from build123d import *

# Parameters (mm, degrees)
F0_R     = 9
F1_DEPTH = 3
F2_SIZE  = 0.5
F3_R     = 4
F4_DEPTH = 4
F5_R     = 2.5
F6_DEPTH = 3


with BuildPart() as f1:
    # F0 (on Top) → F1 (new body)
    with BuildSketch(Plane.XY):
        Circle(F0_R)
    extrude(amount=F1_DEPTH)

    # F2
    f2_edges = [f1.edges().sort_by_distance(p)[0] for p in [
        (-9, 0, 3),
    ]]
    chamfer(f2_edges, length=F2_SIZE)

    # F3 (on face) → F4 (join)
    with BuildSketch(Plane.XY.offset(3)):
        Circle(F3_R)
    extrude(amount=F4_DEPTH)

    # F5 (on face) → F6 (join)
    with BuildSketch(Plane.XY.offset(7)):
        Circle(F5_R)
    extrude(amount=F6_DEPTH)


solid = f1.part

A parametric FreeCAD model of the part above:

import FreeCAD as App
import Part
import Sketcher
from FreeCAD import Vector
Q = App.Units.Quantity


def edges_at(feature, points):
    """Names of the edges that pass closest to the given points."""
    edges = feature.Shape.Edges
    near = lambda p: min(range(len(edges)), key=lambda i: edges[i].distToShape(Part.Vertex(*p))[0])
    return sorted({f"Edge{near(p) + 1}" for p in points})

doc = App.newDocument("Part")
body = doc.addObject("PartDesign::Body", "Body")

sketch1 = doc.addObject("Sketcher::SketchObject", "Sketch")
body.addObject(sketch1)
sketch1.AttachmentSupport = (doc.XY_Plane, [""])
sketch1.MapMode = "FlatFace"
sketch1.addGeometry(Part.Circle(Vector(0, 0, 0), Vector(0, 0, 1), 9), False)
sketch1.addConstraint(Sketcher.Constraint("Coincident", 0, 3, -1, 1))
sketch1.addConstraint(Sketcher.Constraint("Diameter", 0, Q("18 mm")))
pad1 = doc.addObject("PartDesign::Pad", "Pad")
body.addObject(pad1)
pad1.Profile = sketch1
pad1.Length = 3
doc.recompute()

chamfer = doc.addObject("PartDesign::Chamfer", "Chamfer")
body.addObject(chamfer)
chamfer.Base = (pad1, edges_at(pad1, [(-9, 0, 3)]))
chamfer.Size = 0.5

sketch2 = doc.addObject("Sketcher::SketchObject", "Sketch001")
body.addObject(sketch2)
sketch2.AttachmentSupport = (doc.XY_Plane, [""])
sketch2.MapMode = "FlatFace"
sketch2.AttachmentOffset = App.Placement(Vector(0, 0, 3), App.Rotation())
sketch2.addGeometry(Part.Circle(Vector(0, 0, 0), Vector(0, 0, 1), 4), False)
sketch2.addConstraint(Sketcher.Constraint("Coincident", 0, 3, -1, 1))
sketch2.addConstraint(Sketcher.Constraint("Diameter", 0, Q("8 mm")))
pad2 = doc.addObject("PartDesign::Pad", "Pad001")
body.addObject(pad2)
pad2.Profile = sketch2
pad2.Length = 4

sketch3 = doc.addObject("Sketcher::SketchObject", "Sketch002")
body.addObject(sketch3)
sketch3.AttachmentSupport = (doc.XY_Plane, [""])
sketch3.MapMode = "FlatFace"
sketch3.AttachmentOffset = App.Placement(Vector(0, 0, 7), App.Rotation())
sketch3.addGeometry(Part.Circle(Vector(0, 0, 0), Vector(0, 0, 1), 2.5), False)
sketch3.addConstraint(Sketcher.Constraint("Coincident", 0, 3, -1, 1))
sketch3.addConstraint(Sketcher.Constraint("Diameter", 0, Q("5 mm")))
pad3 = doc.addObject("PartDesign::Pad", "Pad002")
body.addObject(pad3)
pad3.Profile = sketch3
pad3.Length = 3

doc.recompute()
